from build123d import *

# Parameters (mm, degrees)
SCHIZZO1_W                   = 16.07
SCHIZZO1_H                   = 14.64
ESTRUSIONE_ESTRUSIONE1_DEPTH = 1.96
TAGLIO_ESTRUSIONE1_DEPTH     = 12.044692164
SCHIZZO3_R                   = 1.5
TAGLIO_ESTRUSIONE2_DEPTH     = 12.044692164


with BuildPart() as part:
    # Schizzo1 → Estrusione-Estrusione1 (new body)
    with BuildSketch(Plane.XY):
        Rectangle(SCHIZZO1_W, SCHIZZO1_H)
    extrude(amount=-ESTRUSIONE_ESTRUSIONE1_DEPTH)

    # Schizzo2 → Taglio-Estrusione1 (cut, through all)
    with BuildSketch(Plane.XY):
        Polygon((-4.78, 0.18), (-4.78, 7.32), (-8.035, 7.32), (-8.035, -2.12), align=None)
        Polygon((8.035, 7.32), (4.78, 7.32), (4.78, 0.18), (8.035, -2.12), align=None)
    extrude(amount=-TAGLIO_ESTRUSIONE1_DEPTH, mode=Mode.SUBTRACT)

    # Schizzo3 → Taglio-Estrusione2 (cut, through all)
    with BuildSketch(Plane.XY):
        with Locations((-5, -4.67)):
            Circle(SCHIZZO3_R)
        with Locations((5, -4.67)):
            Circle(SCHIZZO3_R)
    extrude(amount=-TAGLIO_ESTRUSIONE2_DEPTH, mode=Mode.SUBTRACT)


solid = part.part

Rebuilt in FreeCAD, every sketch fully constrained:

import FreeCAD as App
import Part
import Sketcher

V = App.Vector

doc = App.newDocument("Part")
params = doc.addObject("Spreadsheet::Sheet", "Params")
for row, (alias, value) in enumerate([
    ("sketch1_width", "16.07 mm"),
    ("sketch1_height", "14.64 mm"),
    ("pad1_length", "1.96 mm"),
    ("sketch2_height", "7.14 mm"),
    ("sketch2_height2", "9.44 mm"),
    ("sketch3_diameter", "3 mm"),
], start=1):
    params.set(f"A{row}", alias)
    params.set(f"B{row}", "=" + value)
    params.setAlias(f"B{row}", alias)

body = doc.addObject("PartDesign::Body", "Body")

# Sketch on XY plane
sketch1 = doc.addObject("Sketcher::SketchObject", "Sketch")
body.addObject(sketch1)
sketch1.AttachmentSupport = (doc.XY_Plane, [""])
sketch1.MapMode = "FlatFace"
sketch1.addGeometry([
    Part.LineSegment(V(-8, 7, 0), V(-8, -7, 0)),
    Part.LineSegment(V(-8, -7, 0), V(8, -7, 0)),
    Part.LineSegment(V(8, -7, 0), V(8, 7, 0)),
    Part.LineSegment(V(8, 7, 0), V(-8, 7, 0)),
], False)
sketch1.addConstraint([
    Sketcher.Constraint("Coincident", 0, 2, 1, 1),
    Sketcher.Constraint("Coincident", 1, 2, 2, 1),
    Sketcher.Constraint("Coincident", 2, 2, 3, 1),
    Sketcher.Constraint("Coincident", 3, 2, 0, 1),
    Sketcher.Constraint("Vertical", 0),
    Sketcher.Constraint("Horizontal", 1),
    Sketcher.Constraint("Vertical", 2),
    Sketcher.Constraint("Horizontal", 3),
    Sketcher.Constraint("Symmetric", 0, 2, 2, 2, -1, 1),
    Sketcher.Constraint("DistanceX", 1, 1, 1, 2, 16.07),
    Sketcher.Constraint("DistanceY", 0, 2, 0, 1, 14.64),
])
sketch1.setExpression("Constraints[9]", "Params.sketch1_width")
sketch1.setExpression("Constraints[10]", "Params.sketch1_height")
pad1 = doc.addObject("PartDesign::Pad", "Pad")
body.addObject(pad1)
pad1.Profile = sketch1
pad1.setExpression("Length", "Params.pad1_length")
pad1.Reversed = True

# Sketch on XY plane
sketch2 = doc.addObject("Sketcher::SketchObject", "Sketch001")
body.addObject(sketch2)
sketch2.AttachmentSupport = (doc.XY_Plane, [""])
sketch2.MapMode = "FlatFace"
sketch2.addGeometry([
    Part.LineSegment(V(-4.8, 0.2, 0), V(-4.8, 7.3, 0)),  # 0
    Part.LineSegment(V(-4.8, 7.3, 0), V(-8, 7.3, 0)),  # 1
    Part.LineSegment(V(-8, 7.3, 0), V(-8, -2.1, 0)),  # 2
    Part.LineSegment(V(-8, -2.1, 0), V(-4.8, 0.2, 0)),  # 3
    Part.LineSegment(V(8, 7.3, 0), V(4.8, 7.3, 0)),  # 4
    Part.LineSegment(V(4.8, 7.3, 0), V(4.8, 0.2, 0)),  # 5
    Part.LineSegment(V(4.8, 0.2, 0), V(8, -2.1, 0)),  # 6
    Part.LineSegment(V(8, -2.1, 0), V(8, 7.3, 0)),  # 7
], False)
sketch2.addConstraint([
    Sketcher.Constraint("Coincident", 0, 2, 1, 1),
    Sketcher.Constraint("Coincident", 1, 2, 2, 1),
    Sketcher.Constraint("Coincident", 2, 2, 3, 1),
    Sketcher.Constraint("Coincident", 3, 2, 0, 1),
    Sketcher.Constraint("Coincident", 4, 2, 5, 1),
    Sketcher.Constraint("Coincident", 5, 2, 6, 1),
    Sketcher.Constraint("Coincident", 6, 2, 7, 1),
    Sketcher.Constraint("Coincident", 7, 2, 4, 1),
    Sketcher.Constraint("Vertical", 0),
    Sketcher.Constraint("Horizontal", 1),
    Sketcher.Constraint("Vertical", 2),
    Sketcher.Constraint("Horizontal", 4),
    Sketcher.Constraint("Vertical", 5),
    Sketcher.Constraint("Vertical", 7),
    Sketcher.Constraint("Symmetric", 0, 2, 4, 2, -2),
    Sketcher.Constraint("Symmetric", 2, 2, 6, 2, -2),
    Sketcher.Constraint("Horizontal", 3, 2, 5, 2),
    Sketcher.Constraint("DistanceY", 0, 1, 0, 2, 7.14),
    Sketcher.Constraint("DistanceY", 2, 2, 2, 1, 9.44),
    Sketcher.Constraint("DistanceX", 1, 2, 1, 1, 3.255),
    Sketcher.Constraint("DistanceX", 0, 2, -1, 1, 4.78),
    Sketcher.Constraint("DistanceY", -1, 1, 0, 2, 7.32),
])
sketch2.setExpression("Constraints[17]", "Params.sketch2_height")
sketch2.setExpression("Constraints[18]", "Params.sketch2_height2")
pocket1 = doc.addObject("PartDesign::Pocket", "Pocket")
body.addObject(pocket1)
pocket1.Profile = sketch2
pocket1.Type = "ThroughAll"

# Sketch on XY plane
sketch3 = doc.addObject("Sketcher::SketchObject", "Sketch002")
body.addObject(sketch3)
sketch3.AttachmentSupport = (doc.XY_Plane, [""])
sketch3.MapMode = "FlatFace"
sketch3.addGeometry([
    Part.Circle(V(-5, -4.7, 0), V(0, 0, 1), 1.5),
    Part.Circle(V(5, -4.7, 0), V(0, 0, 1), 1.5),
], False)
sketch3.addConstraint([
    Sketcher.Constraint("Equal", 0, 1),
    Sketcher.Constraint("Symmetric", 0, 3, 1, 3, -2),
    Sketcher.Constraint("Diameter", 0, 3.0),
    Sketcher.Constraint("DistanceX", 0, 3, -1, 1, 5.0),
    Sketcher.Constraint("DistanceY", 0, 3, -1, 1, 4.67),
])
sketch3.setExpression("Constraints[2]", "Params.sketch3_diameter")
pocket2 = doc.addObject("PartDesign::Pocket", "Pocket001")
body.addObject(pocket2)
pocket2.Profile = sketch3
pocket2.Type = "ThroughAll"

doc.recompute()
